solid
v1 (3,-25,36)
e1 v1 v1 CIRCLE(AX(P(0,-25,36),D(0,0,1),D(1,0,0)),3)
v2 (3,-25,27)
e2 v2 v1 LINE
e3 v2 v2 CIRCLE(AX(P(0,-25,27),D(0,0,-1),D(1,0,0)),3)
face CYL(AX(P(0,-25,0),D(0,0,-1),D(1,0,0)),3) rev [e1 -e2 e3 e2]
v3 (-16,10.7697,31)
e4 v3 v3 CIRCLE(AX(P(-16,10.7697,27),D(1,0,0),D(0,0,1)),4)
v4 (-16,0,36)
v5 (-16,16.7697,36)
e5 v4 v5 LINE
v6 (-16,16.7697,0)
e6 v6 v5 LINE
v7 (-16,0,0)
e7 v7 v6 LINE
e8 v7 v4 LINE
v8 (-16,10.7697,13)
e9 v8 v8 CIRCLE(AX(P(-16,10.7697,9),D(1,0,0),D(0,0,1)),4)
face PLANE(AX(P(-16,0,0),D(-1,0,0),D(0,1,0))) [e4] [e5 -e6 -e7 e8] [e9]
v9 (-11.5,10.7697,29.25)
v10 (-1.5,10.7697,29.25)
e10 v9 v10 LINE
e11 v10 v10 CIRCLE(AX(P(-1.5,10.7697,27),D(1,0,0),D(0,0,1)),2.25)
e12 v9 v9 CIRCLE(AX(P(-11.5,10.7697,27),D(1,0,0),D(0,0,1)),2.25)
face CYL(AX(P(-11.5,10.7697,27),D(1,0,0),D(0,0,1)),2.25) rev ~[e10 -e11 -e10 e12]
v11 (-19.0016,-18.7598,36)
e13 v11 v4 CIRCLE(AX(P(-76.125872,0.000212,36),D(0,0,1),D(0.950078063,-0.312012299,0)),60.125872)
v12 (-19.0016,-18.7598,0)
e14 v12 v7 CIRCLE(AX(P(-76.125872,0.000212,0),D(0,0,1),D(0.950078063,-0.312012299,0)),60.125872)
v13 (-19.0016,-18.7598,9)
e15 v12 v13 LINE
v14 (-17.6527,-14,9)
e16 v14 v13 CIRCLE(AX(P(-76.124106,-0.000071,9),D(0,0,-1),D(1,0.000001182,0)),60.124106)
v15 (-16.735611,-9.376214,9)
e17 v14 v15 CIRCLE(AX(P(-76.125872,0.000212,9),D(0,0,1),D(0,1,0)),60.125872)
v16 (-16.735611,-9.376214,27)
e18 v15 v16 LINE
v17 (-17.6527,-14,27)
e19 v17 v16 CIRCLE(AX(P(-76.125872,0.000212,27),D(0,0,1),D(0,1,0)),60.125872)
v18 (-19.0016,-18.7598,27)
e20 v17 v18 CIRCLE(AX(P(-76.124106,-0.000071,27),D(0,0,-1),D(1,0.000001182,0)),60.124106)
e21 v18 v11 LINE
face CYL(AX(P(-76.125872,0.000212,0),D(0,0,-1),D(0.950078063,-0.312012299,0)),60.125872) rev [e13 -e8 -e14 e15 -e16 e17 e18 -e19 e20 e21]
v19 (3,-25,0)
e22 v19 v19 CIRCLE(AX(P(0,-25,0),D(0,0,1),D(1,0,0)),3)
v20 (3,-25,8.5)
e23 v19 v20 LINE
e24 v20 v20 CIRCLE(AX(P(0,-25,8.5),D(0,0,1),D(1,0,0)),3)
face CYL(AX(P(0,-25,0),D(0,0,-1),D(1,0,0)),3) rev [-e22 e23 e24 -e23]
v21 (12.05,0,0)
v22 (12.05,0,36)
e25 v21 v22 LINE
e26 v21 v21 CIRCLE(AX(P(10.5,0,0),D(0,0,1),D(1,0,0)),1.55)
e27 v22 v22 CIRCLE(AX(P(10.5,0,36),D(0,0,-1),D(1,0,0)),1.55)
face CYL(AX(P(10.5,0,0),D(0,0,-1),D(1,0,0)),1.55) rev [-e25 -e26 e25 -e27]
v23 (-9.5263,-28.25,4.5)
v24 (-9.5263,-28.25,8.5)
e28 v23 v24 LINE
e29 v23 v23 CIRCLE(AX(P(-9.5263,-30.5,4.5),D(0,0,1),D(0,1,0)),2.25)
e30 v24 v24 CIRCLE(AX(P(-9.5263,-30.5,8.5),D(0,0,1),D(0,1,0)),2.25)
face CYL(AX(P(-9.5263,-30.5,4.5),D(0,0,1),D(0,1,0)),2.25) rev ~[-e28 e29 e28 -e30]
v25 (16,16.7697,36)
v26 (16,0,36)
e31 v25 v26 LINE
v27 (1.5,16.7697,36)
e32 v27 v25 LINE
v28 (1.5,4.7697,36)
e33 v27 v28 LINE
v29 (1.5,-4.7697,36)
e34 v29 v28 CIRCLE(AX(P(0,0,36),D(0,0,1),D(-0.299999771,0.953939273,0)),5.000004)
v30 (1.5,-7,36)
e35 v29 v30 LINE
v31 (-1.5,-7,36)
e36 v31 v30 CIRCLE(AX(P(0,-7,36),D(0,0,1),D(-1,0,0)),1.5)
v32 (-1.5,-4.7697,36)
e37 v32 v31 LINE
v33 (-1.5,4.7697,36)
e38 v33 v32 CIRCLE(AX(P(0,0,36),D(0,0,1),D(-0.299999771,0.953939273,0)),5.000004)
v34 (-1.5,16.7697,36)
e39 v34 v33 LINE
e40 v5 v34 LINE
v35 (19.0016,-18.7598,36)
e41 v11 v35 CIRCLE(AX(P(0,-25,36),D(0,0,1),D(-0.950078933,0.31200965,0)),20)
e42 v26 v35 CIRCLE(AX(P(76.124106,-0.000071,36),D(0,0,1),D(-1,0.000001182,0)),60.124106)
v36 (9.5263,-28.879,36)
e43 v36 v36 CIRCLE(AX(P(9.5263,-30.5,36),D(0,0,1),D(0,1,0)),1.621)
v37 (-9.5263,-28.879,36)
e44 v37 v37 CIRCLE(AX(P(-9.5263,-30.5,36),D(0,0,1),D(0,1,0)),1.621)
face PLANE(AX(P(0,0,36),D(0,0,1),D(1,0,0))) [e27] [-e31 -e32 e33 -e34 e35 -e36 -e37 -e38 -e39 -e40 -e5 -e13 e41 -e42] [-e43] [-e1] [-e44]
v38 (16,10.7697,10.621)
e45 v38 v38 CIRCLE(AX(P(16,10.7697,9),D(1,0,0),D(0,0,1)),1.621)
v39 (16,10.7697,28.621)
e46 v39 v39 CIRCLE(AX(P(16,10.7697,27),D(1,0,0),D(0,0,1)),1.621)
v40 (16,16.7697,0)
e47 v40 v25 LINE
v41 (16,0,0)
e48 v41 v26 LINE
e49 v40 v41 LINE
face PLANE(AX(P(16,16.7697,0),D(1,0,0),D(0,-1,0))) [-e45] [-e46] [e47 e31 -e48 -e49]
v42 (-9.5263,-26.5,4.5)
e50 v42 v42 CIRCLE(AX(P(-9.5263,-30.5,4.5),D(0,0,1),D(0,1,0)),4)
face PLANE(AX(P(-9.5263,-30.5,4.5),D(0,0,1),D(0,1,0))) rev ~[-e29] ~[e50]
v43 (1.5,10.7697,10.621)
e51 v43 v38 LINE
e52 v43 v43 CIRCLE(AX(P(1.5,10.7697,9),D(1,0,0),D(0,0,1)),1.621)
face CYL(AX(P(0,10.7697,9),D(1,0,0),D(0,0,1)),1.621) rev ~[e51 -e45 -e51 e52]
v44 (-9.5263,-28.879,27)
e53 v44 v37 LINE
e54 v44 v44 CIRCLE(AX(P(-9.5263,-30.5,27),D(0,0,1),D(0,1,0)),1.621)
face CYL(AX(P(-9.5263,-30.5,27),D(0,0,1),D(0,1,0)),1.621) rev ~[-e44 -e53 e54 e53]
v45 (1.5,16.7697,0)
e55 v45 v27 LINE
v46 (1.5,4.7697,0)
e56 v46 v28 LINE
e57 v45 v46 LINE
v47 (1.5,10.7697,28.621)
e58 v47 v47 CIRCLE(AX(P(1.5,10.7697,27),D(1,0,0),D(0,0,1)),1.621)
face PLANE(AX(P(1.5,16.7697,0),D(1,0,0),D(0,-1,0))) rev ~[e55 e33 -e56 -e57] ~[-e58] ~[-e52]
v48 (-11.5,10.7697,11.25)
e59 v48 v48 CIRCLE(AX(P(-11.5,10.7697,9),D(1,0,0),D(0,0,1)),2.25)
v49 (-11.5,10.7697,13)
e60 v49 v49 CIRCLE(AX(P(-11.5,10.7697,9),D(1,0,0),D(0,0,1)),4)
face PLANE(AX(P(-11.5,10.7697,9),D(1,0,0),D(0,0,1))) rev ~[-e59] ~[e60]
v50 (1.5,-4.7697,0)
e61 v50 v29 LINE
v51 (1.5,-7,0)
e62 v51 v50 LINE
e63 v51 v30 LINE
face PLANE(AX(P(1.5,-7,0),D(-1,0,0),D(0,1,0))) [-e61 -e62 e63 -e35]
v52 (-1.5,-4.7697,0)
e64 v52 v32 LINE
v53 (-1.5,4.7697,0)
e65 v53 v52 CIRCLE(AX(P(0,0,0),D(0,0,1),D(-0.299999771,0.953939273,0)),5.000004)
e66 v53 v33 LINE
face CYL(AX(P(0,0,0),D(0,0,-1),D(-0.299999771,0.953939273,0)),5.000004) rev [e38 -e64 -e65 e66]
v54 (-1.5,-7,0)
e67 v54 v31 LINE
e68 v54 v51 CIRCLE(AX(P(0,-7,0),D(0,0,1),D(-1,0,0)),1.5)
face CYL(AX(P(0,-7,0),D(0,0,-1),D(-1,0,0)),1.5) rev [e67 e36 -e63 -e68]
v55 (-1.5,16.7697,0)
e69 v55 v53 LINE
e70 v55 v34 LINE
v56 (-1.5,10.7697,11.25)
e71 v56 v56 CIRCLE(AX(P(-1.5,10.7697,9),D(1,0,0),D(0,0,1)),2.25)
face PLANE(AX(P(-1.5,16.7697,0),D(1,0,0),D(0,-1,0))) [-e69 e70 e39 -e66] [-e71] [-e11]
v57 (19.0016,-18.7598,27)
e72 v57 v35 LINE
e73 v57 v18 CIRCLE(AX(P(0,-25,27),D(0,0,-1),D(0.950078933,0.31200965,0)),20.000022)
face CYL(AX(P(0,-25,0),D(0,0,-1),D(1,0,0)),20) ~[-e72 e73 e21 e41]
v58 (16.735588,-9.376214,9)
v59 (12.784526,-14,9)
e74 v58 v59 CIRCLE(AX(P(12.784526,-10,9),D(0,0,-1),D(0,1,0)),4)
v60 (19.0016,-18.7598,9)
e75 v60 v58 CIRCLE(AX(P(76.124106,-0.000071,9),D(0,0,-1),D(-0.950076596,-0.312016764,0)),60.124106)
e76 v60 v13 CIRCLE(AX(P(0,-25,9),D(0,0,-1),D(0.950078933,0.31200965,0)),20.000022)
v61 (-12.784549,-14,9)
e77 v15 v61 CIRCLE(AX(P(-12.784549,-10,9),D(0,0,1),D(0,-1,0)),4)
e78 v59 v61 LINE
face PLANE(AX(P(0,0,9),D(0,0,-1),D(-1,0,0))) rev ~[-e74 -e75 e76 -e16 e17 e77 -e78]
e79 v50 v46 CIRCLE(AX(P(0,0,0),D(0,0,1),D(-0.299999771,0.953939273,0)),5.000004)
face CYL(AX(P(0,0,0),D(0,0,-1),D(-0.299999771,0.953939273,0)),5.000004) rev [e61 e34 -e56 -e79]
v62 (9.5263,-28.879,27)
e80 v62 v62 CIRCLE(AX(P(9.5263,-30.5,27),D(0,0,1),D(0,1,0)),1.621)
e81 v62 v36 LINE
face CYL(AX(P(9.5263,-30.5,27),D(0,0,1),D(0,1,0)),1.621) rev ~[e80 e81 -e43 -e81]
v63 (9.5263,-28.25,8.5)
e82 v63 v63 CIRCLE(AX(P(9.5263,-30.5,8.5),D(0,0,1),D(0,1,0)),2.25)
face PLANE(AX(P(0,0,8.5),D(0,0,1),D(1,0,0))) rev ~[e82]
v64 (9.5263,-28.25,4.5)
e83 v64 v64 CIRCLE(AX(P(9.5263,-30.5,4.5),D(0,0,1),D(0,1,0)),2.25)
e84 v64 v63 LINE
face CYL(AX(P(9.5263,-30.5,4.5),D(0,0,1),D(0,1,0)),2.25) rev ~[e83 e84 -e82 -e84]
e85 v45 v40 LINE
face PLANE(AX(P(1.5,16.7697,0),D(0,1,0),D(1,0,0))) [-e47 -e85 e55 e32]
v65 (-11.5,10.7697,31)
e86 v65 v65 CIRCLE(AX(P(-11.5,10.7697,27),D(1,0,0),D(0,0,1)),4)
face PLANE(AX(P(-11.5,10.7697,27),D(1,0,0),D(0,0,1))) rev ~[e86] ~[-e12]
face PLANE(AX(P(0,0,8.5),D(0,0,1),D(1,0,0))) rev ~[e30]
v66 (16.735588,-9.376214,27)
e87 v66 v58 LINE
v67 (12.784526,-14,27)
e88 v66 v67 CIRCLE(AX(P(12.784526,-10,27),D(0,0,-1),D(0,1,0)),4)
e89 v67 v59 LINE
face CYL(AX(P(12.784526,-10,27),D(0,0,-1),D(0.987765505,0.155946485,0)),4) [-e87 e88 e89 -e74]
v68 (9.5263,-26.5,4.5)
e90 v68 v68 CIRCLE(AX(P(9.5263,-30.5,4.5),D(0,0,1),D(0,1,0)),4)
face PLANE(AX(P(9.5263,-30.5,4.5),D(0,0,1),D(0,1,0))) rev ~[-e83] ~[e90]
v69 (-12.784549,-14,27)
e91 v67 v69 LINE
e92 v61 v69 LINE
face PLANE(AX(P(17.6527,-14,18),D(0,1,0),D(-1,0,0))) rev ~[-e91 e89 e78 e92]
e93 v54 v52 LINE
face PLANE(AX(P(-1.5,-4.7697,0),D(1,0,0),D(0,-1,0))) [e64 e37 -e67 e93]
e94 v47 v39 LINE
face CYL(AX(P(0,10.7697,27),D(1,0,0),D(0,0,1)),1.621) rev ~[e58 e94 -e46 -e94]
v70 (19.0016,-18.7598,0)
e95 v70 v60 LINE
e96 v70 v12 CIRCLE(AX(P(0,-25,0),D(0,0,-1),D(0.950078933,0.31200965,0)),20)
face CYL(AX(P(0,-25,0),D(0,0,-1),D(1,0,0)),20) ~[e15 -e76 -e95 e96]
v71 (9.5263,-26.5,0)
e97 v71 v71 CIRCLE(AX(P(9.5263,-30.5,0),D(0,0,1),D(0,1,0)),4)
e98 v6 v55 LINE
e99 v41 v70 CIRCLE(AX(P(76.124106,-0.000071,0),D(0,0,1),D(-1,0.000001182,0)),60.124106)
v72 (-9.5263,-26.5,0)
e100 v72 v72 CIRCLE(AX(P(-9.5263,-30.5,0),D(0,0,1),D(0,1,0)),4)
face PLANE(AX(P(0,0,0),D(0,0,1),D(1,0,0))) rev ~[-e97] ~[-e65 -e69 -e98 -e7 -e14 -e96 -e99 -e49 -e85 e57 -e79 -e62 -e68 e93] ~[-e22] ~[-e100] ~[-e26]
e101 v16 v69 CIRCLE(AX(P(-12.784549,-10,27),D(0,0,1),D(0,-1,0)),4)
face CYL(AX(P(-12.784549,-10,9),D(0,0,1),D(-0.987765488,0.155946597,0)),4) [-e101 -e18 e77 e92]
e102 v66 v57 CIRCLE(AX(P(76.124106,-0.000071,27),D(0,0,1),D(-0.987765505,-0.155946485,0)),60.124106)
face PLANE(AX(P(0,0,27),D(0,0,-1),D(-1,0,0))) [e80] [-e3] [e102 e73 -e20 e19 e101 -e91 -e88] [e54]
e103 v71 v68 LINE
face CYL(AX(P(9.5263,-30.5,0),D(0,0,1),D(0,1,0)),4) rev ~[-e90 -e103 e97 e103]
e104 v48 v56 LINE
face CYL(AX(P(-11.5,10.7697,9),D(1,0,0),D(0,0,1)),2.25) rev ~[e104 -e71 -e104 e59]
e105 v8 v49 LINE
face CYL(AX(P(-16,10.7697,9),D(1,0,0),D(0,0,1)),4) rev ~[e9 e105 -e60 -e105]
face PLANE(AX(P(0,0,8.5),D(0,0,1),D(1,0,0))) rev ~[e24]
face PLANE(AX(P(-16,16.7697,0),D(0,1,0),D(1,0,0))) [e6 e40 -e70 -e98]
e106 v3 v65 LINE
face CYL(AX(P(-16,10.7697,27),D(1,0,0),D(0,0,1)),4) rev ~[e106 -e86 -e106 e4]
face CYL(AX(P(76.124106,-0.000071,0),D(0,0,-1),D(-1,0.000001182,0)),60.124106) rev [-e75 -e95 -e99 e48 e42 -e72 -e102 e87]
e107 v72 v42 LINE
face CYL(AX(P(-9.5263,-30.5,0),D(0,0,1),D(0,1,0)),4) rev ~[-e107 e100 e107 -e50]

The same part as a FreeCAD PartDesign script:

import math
import FreeCAD as App
import Part
import Sketcher
Q = App.Units.Quantity


def edges_at(feature, points):
    """Names of the edges that pass closest to the given points."""
    edges = feature.Shape.Edges
    near = lambda p: min(range(len(edges)), key=lambda i: edges[i].distToShape(Part.Vertex(*p))[0])
    return sorted({f"Edge{near(p) + 1}" for p in points})

doc = App.newDocument("Part")
body = doc.addObject("PartDesign::Body", "Body")

# Sketch on XY plane
sketch1 = body.newObject("Sketcher::SketchObject", "Sketch")
sketch1.AttachmentSupport = (doc.getObject("XY_Plane"), [""])
sketch1.MapMode = "FlatFace"
sketch1.addGeometry([
    Part.ArcOfCircle(Part.Circle(App.Vector(0, 0, 0), App.Vector(0, 0, 1), 5), math.radians(107), math.radians(253)),  # 0
    Part.LineSegment(App.Vector(-1.5, 4.8, 0), App.Vector(-1.5, 16.8, 0)),  # 1
    Part.LineSegment(App.Vector(-1.5, 16.8, 0), App.Vector(-16, 16.8, 0)),  # 2
    Part.LineSegment(App.Vector(-16, 16.8, 0), App.Vector(-16, 0, 0)),  # 3
    Part.ArcOfCircle(Part.Circle(App.Vector(-76.1, 0, 0), App.Vector(0, 0, 1), 60.1), math.radians(-18.18), math.radians(0)),  # 4
    Part.ArcOfCircle(Part.Circle(App.Vector(0, -25, 0), App.Vector(0, 0, 1), 20), math.radians(162), math.radians(378)),  # 5
    Part.ArcOfCircle(Part.Circle(App.Vector(76.1, 0, 0), App.Vector(0, 0, 1), 60.1), math.radians(180), math.radians(198.18)),  # 6
    Part.LineSegment(App.Vector(16, 0, 0), App.Vector(16, 16.8, 0)),  # 7
    Part.LineSegment(App.Vector(16, 16.8, 0), App.Vector(1.5, 16.8, 0)),  # 8
    Part.LineSegment(App.Vector(1.5, 16.8, 0), App.Vector(1.5, 4.8, 0)),  # 9
    Part.ArcOfCircle(Part.Circle(App.Vector(0, 0, 0), App.Vector(0, 0, 1), 5), math.radians(-73), math.radians(73)),  # 10
    Part.LineSegment(App.Vector(1.5, -4.8, 0), App.Vector(1.5, -7, 0)),  # 11
    Part.ArcOfCircle(Part.Circle(App.Vector(0, -7, 0), App.Vector(0, 0, 1), 1.5), math.radians(180), math.radians(360)),  # 12
    Part.LineSegment(App.Vector(-1.5, -7, 0), App.Vector(-1.5, -4.8, 0)),  # 13
    Part.Circle(App.Vector(0, -25, 0), App.Vector(0, 0, 1), 3),  # 14
], False)
sketch1.addConstraint([
    Sketcher.Constraint("Coincident", 0, 1, 1, 1),
    Sketcher.Constraint("Coincident", 1, 2, 2, 1),
    Sketcher.Constraint("Coincident", 2, 2, 3, 1),
    Sketcher.Constraint("Tangent", 3, 2, 4, 2),
    Sketcher.Constraint("Tangent", 4, 1, 5, 1),
    Sketcher.Constraint("Tangent", 5, 2, 6, 2),
    Sketcher.Constraint("Tangent", 6, 1, 7, 1),
    Sketcher.Constraint("Coincident", 7, 2, 8, 1),
    Sketcher.Constraint("Coincident", 8, 2, 9, 1),
    Sketcher.Constraint("Coincident", 9, 2, 10, 2),
    Sketcher.Constraint("Coincident", 10, 1, 11, 1),
    Sketcher.Constraint("Tangent", 11, 2, 12, 2),
    Sketcher.Constraint("Tangent", 12, 1, 13, 1),
    Sketcher.Constraint("Coincident", 13, 2, 0, 2),
    Sketcher.Constraint("Vertical", 1),
    Sketcher.Constraint("Horizontal", 2),
    Sketcher.Constraint("Vertical", 3),
    Sketcher.Constraint("Vertical", 7),
    Sketcher.Constraint("Horizontal", 8),
    Sketcher.Constraint("Vertical", 9),
    Sketcher.Constraint("Vertical", 11),
    Sketcher.Constraint("Vertical", 13),
    Sketcher.Constraint("Coincident", 0, 3, -1, 1),
    Sketcher.Constraint("Coincident", 10, 3, -1, 1),
    Sketcher.Constraint("Coincident", 14, 3, 5, 3),
    Sketcher.Constraint("Equal", 4, 6),
    Sketcher.Constraint("Equal", 0, 10),
    Sketcher.Constraint("Symmetric", 4, 3, 6, 3, -1, 1),
    Sketcher.Constraint("Symmetric", 1, 2, 8, 2, -2),
    Sketcher.Constraint("PointOnObject", 4, 3, -1),
    Sketcher.Constraint("PointOnObject", 12, 3, -2),
    Sketcher.Constraint("Vertical", 9, 2, 10, 1),
    Sketcher.Constraint("Diameter", 14, Q("6 mm")),
    Sketcher.Constraint("Radius", 0, Q("5 mm")),
    Sketcher.Constraint("Radius", 5, Q("20 mm")),
    Sketcher.Constraint("Radius", 12, Q("1.5 mm")),
    Sketcher.Constraint("DistanceY", 5, 3, -1, 1, Q("25 mm")),
    Sketcher.Constraint("DistanceY", 12, 3, -1, 1, Q("7 mm")),
    Sketcher.Constraint("DistanceY", 1, 1, 1, 2, Q("12 mm")),
    Sketcher.Constraint("DistanceX", 2, 2, 2, 1, Q("14.5 mm")),
])
pad1 = body.newObject("PartDesign::Pad", "Pad")
pad1.Profile = sketch1
pad1.Length = 36

# Sketch on XY plane
sketch2 = body.newObject("Sketcher::SketchObject", "Sketch001")
sketch2.AttachmentSupport = (doc.getObject("XY_Plane"), [""])
sketch2.MapMode = "FlatFace"
sketch2.AttachmentOffset = App.Placement(App.Vector(0, 0, 18), App.Rotation())
sketch2.addGeometry([
    Part.ArcOfCircle(Part.Circle(App.Vector(76.1, 0, 0), App.Vector(0, 0, 1), 60.1), math.radians(-166.54), math.radians(-161.82)),
    Part.ArcOfCircle(Part.Circle(App.Vector(0, -25, 0), App.Vector(0, 0, 1), 20), math.radians(162), math.radians(378)),
    Part.ArcOfCircle(Part.Circle(App.Vector(-76.1, 0, 0), App.Vector(0, 0, 1), 60.1), math.radians(-18.18), math.radians(-13.46)),
    Part.LineSegment(App.Vector(-17.7, -14, 0), App.Vector(17.7, -14, 0)),
], False)
sketch2.addConstraint([
    Sketcher.Constraint("Tangent", 0, 2, 1, 2),
    Sketcher.Constraint("Tangent", 1, 1, 2, 1),
    Sketcher.Constraint("Coincident", 2, 2, 3, 1),
    Sketcher.Constraint("Coincident", 3, 2, 0, 1),
    Sketcher.Constraint("Horizontal", 3),
    Sketcher.Constraint("Equal", 0, 2),
    Sketcher.Constraint("Symmetric", 0, 3, 2, 3, -1, 1),
    Sketcher.Constraint("PointOnObject", 0, 3, -1),
    Sketcher.Constraint("Radius", 1, Q("20 mm")),
    Sketcher.Constraint("DistanceY", 1, 3, 2, 2, Q("11 mm")),
    Sketcher.Constraint("DistanceY", 1, 3, -1, 1, Q("25 mm")),
    Sketcher.Constraint("Radius", 0, Q("60.125 mm")),
])
pocket1 = body.newObject("PartDesign::Pocket", "Pocket")
pocket1.Profile = sketch2
pocket1.Length = 18
pocket1.Midplane = True

# Sketch on XY plane
sketch3 = body.newObject("Sketcher::SketchObject", "Sketch002")
sketch3.AttachmentSupport = (doc.getObject("XY_Plane"), [""])
sketch3.MapMode = "FlatFace"
sketch3.addGeometry([
    Part.Circle(App.Vector(-9.5, -30.5, 0), App.Vector(0, 0, 1), 2.2),
    Part.Circle(App.Vector(9.5, -30.5, 0), App.Vector(0, 0, 1), 2.2),
], False)
sketch3.addConstraint([
    Sketcher.Constraint("Equal", 0, 1),
    Sketcher.Constraint("Symmetric", 0, 3, 1, 3, -2),
    Sketcher.Constraint("Diameter", 0, Q("4.5 mm")),
    Sketcher.Constraint("DistanceY", 0, 3, -1, 1, Q("30.5 mm")),
    Sketcher.Constraint("DistanceX", 0, 3, -1, 1, Q("9.5263 mm")),
])
doc.recompute()
hole = body.newObject("PartDesign::Hole", "Hole")
hole.Profile = sketch3
hole.ThreadType = "None"
hole.Diameter = 4.5
hole.DepthType = "Dimension"
hole.Depth = 9
hole.DrillPoint = "Flat"
hole.HoleCutType = "Counterbore"
hole.HoleCutDiameter = 8
hole.HoleCutDepth = 4.5
hole.Reversed = True

# Sketch on XY plane
sketch4 = body.newObject("Sketcher::SketchObject", "Sketch003")
sketch4.AttachmentSupport = (doc.getObject("XY_Plane"), [""])
sketch4.MapMode = "FlatFace"
sketch4.AttachmentOffset = App.Placement(App.Vector(0, 0, 27), App.Rotation())
sketch4.addGeometry([
    Part.Circle(App.Vector(9.5, -30.5, 0), App.Vector(0, 0, 1), 1.6),
    Part.Circle(App.Vector(-9.5, -30.5, 0), App.Vector(0, 0, 1), 1.6),
], False)
sketch4.addConstraint([
    Sketcher.Constraint("Equal", 0, 1),
    Sketcher.Constraint("Symmetric", 0, 3, 1, 3, -2),
    Sketcher.Constraint("Diameter", 0, Q("3.242 mm")),
    Sketcher.Constraint("DistanceY", 0, 3, -1, 1, Q("30.5 mm")),
    Sketcher.Constraint("DistanceX", -1, 1, 0, 3, Q("9.5263 mm")),
])
doc.recompute()
hole2 = body.newObject("PartDesign::Hole", "Hole001")
hole2.Profile = sketch4
hole2.ThreadType = "None"
hole2.Diameter = 3.242
hole2.DepthType = "ThroughAll"
hole2.Reversed = True

# Sketch on YZ plane
sketch5 = body.newObject("Sketcher::SketchObject", "Sketch004")
sketch5.AttachmentSupport = (doc.getObject("YZ_Plane"), [""])
sketch5.MapMode = "FlatFace"
sketch5.addGeometry([
    Part.Circle(App.Vector(10.8, 27, 0), App.Vector(0, 0, 1), 1.6),
    Part.Circle(App.Vector(10.8, 9, 0), App.Vector(0, 0, 1), 1.6),
], False)
sketch5.addConstraint([
    Sketcher.Constraint("Equal", 0, 1),
    Sketcher.Constraint("Vertical", 0, 3, 1, 3),
    Sketcher.Constraint("Diameter", 0, Q("3.242 mm")),
    Sketcher.Constraint("DistanceY", -1, 1, 0, 3, Q("27 mm")),
    Sketcher.Constraint("DistanceY", -1, 1, 1, 3, Q("9 mm")),
    Sketcher.Constraint("DistanceX", -1, 1, 0, 3, Q("10.7697 mm")),
])
doc.recompute()
hole3 = body.newObject("PartDesign::Hole", "Hole002")
hole3.Profile = sketch5
hole3.ThreadType = "None"
hole3.Diameter = 3.242
hole3.DepthType = "ThroughAll"
hole3.Reversed = True

# Sketch on YZ plane
sketch6 = body.newObject("Sketcher::SketchObject", "Sketch005")
sketch6.AttachmentSupport = (doc.getObject("YZ_Plane"), [""])
sketch6.MapMode = "FlatFace"
sketch6.AttachmentOffset = App.Placement(App.Vector(0, 0, -16), App.Rotation())
sketch6.addGeometry([
    Part.Circle(App.Vector(10.8, 9, 0), App.Vector(0, 0, 1), 2.2),
    Part.Circle(App.Vector(10.8, 27, 0), App.Vector(0, 0, 1), 2.2),
], False)
sketch6.addConstraint([
    Sketcher.Constraint("Equal", 0, 1),
    Sketcher.Constraint("Vertical", 0, 3, 1, 3),
    Sketcher.Constraint("Diameter", 0, Q("4.5 mm")),
    Sketcher.Constraint("DistanceY", -1, 1, 0, 3, Q("9 mm")),
    Sketcher.Constraint("DistanceY", -1, 1, 1, 3, Q("27 mm")),
    Sketcher.Constraint("DistanceX", -1, 1, 0, 3, Q("10.7697 mm")),
])
doc.recompute()
hole4 = body.newObject("PartDesign::Hole", "Hole003")
hole4.Profile = sketch6
hole4.ThreadType = "None"
hole4.Diameter = 4.5
hole4.DepthType = "Dimension"
hole4.Depth = 14.5
hole4.DrillPoint = "Flat"
hole4.HoleCutType = "Counterbore"
hole4.HoleCutDiameter = 8
hole4.HoleCutDepth = 4.5
hole4.Reversed = True
doc.recompute()

fillet = body.newObject("PartDesign::Fillet", "Fillet")
fillet.Base = (hole4, edges_at(hole4, [(17.653, -14, 18), (-17.653, -14, 18)]))
fillet.Radius = 4

# Sketch on XY plane
sketch7 = body.newObject("Sketcher::SketchObject", "Sketch006")
sketch7.AttachmentSupport = (doc.getObject("XY_Plane"), [""])
sketch7.MapMode = "FlatFace"
sketch7.addGeometry(Part.Circle(App.Vector(10.5, 0, 0), App.Vector(0, 0, 1), 1.6), False)
sketch7.addConstraint([
    Sketcher.Constraint("PointOnObject", 0, 3, -1),
    Sketcher.Constraint("Diameter", 0, Q("3.1 mm")),
    Sketcher.Constraint("DistanceX", -1, 1, 0, 3, Q("10.5 mm")),
])
pocket2 = body.newObject("PartDesign::Pocket", "Pocket001")
pocket2.Profile = sketch7
pocket2.Type = "ThroughAll"
pocket2.Reversed = True

# Sketch on XY plane
sketch8 = body.newObject("Sketcher::SketchObject", "Sketch007")
sketch8.AttachmentSupport = (doc.getObject("XY_Plane"), [""])
sketch8.MapMode = "FlatFace"
sketch8.AttachmentOffset = App.Placement(App.Vector(0, 0, 9), App.Rotation())
sketch8.addGeometry([
    Part.Circle(App.Vector(9.5, -30.5, 0), App.Vector(0, 0, 1), 2.2),
    Part.Circle(App.Vector(0, -25, 0), App.Vector(0, 0, 1), 3),
    Part.Circle(App.Vector(-9.5, -30.5, 0), App.Vector(0, 0, 1), 2.2),
], False)
sketch8.addConstraint([
    Sketcher.Constraint("Equal", 0, 2),
    Sketcher.Constraint("Symmetric", 0, 3, 2, 3, -2),
    Sketcher.Constraint("PointOnObject", 1, 3, -2),
    Sketcher.Constraint("Diameter", 1, Q("6 mm")),
    Sketcher.Constraint("Diameter", 0, Q("4.5 mm")),
    Sketcher.Constraint("DistanceY", 1, 3, -1, 1, Q("25 mm")),
    Sketcher.Constraint("DistanceY", 0, 3, -1, 1, Q("30.5 mm")),
    Sketcher.Constraint("DistanceX", -1, 1, 0, 3, Q("9.5263 mm")),
])
pad2 = body.newObject("PartDesign::Pad", "Pad001")
pad2.Profile = sketch8
pad2.Length = 0.5
pad2.Reversed = True

doc.recompute()
